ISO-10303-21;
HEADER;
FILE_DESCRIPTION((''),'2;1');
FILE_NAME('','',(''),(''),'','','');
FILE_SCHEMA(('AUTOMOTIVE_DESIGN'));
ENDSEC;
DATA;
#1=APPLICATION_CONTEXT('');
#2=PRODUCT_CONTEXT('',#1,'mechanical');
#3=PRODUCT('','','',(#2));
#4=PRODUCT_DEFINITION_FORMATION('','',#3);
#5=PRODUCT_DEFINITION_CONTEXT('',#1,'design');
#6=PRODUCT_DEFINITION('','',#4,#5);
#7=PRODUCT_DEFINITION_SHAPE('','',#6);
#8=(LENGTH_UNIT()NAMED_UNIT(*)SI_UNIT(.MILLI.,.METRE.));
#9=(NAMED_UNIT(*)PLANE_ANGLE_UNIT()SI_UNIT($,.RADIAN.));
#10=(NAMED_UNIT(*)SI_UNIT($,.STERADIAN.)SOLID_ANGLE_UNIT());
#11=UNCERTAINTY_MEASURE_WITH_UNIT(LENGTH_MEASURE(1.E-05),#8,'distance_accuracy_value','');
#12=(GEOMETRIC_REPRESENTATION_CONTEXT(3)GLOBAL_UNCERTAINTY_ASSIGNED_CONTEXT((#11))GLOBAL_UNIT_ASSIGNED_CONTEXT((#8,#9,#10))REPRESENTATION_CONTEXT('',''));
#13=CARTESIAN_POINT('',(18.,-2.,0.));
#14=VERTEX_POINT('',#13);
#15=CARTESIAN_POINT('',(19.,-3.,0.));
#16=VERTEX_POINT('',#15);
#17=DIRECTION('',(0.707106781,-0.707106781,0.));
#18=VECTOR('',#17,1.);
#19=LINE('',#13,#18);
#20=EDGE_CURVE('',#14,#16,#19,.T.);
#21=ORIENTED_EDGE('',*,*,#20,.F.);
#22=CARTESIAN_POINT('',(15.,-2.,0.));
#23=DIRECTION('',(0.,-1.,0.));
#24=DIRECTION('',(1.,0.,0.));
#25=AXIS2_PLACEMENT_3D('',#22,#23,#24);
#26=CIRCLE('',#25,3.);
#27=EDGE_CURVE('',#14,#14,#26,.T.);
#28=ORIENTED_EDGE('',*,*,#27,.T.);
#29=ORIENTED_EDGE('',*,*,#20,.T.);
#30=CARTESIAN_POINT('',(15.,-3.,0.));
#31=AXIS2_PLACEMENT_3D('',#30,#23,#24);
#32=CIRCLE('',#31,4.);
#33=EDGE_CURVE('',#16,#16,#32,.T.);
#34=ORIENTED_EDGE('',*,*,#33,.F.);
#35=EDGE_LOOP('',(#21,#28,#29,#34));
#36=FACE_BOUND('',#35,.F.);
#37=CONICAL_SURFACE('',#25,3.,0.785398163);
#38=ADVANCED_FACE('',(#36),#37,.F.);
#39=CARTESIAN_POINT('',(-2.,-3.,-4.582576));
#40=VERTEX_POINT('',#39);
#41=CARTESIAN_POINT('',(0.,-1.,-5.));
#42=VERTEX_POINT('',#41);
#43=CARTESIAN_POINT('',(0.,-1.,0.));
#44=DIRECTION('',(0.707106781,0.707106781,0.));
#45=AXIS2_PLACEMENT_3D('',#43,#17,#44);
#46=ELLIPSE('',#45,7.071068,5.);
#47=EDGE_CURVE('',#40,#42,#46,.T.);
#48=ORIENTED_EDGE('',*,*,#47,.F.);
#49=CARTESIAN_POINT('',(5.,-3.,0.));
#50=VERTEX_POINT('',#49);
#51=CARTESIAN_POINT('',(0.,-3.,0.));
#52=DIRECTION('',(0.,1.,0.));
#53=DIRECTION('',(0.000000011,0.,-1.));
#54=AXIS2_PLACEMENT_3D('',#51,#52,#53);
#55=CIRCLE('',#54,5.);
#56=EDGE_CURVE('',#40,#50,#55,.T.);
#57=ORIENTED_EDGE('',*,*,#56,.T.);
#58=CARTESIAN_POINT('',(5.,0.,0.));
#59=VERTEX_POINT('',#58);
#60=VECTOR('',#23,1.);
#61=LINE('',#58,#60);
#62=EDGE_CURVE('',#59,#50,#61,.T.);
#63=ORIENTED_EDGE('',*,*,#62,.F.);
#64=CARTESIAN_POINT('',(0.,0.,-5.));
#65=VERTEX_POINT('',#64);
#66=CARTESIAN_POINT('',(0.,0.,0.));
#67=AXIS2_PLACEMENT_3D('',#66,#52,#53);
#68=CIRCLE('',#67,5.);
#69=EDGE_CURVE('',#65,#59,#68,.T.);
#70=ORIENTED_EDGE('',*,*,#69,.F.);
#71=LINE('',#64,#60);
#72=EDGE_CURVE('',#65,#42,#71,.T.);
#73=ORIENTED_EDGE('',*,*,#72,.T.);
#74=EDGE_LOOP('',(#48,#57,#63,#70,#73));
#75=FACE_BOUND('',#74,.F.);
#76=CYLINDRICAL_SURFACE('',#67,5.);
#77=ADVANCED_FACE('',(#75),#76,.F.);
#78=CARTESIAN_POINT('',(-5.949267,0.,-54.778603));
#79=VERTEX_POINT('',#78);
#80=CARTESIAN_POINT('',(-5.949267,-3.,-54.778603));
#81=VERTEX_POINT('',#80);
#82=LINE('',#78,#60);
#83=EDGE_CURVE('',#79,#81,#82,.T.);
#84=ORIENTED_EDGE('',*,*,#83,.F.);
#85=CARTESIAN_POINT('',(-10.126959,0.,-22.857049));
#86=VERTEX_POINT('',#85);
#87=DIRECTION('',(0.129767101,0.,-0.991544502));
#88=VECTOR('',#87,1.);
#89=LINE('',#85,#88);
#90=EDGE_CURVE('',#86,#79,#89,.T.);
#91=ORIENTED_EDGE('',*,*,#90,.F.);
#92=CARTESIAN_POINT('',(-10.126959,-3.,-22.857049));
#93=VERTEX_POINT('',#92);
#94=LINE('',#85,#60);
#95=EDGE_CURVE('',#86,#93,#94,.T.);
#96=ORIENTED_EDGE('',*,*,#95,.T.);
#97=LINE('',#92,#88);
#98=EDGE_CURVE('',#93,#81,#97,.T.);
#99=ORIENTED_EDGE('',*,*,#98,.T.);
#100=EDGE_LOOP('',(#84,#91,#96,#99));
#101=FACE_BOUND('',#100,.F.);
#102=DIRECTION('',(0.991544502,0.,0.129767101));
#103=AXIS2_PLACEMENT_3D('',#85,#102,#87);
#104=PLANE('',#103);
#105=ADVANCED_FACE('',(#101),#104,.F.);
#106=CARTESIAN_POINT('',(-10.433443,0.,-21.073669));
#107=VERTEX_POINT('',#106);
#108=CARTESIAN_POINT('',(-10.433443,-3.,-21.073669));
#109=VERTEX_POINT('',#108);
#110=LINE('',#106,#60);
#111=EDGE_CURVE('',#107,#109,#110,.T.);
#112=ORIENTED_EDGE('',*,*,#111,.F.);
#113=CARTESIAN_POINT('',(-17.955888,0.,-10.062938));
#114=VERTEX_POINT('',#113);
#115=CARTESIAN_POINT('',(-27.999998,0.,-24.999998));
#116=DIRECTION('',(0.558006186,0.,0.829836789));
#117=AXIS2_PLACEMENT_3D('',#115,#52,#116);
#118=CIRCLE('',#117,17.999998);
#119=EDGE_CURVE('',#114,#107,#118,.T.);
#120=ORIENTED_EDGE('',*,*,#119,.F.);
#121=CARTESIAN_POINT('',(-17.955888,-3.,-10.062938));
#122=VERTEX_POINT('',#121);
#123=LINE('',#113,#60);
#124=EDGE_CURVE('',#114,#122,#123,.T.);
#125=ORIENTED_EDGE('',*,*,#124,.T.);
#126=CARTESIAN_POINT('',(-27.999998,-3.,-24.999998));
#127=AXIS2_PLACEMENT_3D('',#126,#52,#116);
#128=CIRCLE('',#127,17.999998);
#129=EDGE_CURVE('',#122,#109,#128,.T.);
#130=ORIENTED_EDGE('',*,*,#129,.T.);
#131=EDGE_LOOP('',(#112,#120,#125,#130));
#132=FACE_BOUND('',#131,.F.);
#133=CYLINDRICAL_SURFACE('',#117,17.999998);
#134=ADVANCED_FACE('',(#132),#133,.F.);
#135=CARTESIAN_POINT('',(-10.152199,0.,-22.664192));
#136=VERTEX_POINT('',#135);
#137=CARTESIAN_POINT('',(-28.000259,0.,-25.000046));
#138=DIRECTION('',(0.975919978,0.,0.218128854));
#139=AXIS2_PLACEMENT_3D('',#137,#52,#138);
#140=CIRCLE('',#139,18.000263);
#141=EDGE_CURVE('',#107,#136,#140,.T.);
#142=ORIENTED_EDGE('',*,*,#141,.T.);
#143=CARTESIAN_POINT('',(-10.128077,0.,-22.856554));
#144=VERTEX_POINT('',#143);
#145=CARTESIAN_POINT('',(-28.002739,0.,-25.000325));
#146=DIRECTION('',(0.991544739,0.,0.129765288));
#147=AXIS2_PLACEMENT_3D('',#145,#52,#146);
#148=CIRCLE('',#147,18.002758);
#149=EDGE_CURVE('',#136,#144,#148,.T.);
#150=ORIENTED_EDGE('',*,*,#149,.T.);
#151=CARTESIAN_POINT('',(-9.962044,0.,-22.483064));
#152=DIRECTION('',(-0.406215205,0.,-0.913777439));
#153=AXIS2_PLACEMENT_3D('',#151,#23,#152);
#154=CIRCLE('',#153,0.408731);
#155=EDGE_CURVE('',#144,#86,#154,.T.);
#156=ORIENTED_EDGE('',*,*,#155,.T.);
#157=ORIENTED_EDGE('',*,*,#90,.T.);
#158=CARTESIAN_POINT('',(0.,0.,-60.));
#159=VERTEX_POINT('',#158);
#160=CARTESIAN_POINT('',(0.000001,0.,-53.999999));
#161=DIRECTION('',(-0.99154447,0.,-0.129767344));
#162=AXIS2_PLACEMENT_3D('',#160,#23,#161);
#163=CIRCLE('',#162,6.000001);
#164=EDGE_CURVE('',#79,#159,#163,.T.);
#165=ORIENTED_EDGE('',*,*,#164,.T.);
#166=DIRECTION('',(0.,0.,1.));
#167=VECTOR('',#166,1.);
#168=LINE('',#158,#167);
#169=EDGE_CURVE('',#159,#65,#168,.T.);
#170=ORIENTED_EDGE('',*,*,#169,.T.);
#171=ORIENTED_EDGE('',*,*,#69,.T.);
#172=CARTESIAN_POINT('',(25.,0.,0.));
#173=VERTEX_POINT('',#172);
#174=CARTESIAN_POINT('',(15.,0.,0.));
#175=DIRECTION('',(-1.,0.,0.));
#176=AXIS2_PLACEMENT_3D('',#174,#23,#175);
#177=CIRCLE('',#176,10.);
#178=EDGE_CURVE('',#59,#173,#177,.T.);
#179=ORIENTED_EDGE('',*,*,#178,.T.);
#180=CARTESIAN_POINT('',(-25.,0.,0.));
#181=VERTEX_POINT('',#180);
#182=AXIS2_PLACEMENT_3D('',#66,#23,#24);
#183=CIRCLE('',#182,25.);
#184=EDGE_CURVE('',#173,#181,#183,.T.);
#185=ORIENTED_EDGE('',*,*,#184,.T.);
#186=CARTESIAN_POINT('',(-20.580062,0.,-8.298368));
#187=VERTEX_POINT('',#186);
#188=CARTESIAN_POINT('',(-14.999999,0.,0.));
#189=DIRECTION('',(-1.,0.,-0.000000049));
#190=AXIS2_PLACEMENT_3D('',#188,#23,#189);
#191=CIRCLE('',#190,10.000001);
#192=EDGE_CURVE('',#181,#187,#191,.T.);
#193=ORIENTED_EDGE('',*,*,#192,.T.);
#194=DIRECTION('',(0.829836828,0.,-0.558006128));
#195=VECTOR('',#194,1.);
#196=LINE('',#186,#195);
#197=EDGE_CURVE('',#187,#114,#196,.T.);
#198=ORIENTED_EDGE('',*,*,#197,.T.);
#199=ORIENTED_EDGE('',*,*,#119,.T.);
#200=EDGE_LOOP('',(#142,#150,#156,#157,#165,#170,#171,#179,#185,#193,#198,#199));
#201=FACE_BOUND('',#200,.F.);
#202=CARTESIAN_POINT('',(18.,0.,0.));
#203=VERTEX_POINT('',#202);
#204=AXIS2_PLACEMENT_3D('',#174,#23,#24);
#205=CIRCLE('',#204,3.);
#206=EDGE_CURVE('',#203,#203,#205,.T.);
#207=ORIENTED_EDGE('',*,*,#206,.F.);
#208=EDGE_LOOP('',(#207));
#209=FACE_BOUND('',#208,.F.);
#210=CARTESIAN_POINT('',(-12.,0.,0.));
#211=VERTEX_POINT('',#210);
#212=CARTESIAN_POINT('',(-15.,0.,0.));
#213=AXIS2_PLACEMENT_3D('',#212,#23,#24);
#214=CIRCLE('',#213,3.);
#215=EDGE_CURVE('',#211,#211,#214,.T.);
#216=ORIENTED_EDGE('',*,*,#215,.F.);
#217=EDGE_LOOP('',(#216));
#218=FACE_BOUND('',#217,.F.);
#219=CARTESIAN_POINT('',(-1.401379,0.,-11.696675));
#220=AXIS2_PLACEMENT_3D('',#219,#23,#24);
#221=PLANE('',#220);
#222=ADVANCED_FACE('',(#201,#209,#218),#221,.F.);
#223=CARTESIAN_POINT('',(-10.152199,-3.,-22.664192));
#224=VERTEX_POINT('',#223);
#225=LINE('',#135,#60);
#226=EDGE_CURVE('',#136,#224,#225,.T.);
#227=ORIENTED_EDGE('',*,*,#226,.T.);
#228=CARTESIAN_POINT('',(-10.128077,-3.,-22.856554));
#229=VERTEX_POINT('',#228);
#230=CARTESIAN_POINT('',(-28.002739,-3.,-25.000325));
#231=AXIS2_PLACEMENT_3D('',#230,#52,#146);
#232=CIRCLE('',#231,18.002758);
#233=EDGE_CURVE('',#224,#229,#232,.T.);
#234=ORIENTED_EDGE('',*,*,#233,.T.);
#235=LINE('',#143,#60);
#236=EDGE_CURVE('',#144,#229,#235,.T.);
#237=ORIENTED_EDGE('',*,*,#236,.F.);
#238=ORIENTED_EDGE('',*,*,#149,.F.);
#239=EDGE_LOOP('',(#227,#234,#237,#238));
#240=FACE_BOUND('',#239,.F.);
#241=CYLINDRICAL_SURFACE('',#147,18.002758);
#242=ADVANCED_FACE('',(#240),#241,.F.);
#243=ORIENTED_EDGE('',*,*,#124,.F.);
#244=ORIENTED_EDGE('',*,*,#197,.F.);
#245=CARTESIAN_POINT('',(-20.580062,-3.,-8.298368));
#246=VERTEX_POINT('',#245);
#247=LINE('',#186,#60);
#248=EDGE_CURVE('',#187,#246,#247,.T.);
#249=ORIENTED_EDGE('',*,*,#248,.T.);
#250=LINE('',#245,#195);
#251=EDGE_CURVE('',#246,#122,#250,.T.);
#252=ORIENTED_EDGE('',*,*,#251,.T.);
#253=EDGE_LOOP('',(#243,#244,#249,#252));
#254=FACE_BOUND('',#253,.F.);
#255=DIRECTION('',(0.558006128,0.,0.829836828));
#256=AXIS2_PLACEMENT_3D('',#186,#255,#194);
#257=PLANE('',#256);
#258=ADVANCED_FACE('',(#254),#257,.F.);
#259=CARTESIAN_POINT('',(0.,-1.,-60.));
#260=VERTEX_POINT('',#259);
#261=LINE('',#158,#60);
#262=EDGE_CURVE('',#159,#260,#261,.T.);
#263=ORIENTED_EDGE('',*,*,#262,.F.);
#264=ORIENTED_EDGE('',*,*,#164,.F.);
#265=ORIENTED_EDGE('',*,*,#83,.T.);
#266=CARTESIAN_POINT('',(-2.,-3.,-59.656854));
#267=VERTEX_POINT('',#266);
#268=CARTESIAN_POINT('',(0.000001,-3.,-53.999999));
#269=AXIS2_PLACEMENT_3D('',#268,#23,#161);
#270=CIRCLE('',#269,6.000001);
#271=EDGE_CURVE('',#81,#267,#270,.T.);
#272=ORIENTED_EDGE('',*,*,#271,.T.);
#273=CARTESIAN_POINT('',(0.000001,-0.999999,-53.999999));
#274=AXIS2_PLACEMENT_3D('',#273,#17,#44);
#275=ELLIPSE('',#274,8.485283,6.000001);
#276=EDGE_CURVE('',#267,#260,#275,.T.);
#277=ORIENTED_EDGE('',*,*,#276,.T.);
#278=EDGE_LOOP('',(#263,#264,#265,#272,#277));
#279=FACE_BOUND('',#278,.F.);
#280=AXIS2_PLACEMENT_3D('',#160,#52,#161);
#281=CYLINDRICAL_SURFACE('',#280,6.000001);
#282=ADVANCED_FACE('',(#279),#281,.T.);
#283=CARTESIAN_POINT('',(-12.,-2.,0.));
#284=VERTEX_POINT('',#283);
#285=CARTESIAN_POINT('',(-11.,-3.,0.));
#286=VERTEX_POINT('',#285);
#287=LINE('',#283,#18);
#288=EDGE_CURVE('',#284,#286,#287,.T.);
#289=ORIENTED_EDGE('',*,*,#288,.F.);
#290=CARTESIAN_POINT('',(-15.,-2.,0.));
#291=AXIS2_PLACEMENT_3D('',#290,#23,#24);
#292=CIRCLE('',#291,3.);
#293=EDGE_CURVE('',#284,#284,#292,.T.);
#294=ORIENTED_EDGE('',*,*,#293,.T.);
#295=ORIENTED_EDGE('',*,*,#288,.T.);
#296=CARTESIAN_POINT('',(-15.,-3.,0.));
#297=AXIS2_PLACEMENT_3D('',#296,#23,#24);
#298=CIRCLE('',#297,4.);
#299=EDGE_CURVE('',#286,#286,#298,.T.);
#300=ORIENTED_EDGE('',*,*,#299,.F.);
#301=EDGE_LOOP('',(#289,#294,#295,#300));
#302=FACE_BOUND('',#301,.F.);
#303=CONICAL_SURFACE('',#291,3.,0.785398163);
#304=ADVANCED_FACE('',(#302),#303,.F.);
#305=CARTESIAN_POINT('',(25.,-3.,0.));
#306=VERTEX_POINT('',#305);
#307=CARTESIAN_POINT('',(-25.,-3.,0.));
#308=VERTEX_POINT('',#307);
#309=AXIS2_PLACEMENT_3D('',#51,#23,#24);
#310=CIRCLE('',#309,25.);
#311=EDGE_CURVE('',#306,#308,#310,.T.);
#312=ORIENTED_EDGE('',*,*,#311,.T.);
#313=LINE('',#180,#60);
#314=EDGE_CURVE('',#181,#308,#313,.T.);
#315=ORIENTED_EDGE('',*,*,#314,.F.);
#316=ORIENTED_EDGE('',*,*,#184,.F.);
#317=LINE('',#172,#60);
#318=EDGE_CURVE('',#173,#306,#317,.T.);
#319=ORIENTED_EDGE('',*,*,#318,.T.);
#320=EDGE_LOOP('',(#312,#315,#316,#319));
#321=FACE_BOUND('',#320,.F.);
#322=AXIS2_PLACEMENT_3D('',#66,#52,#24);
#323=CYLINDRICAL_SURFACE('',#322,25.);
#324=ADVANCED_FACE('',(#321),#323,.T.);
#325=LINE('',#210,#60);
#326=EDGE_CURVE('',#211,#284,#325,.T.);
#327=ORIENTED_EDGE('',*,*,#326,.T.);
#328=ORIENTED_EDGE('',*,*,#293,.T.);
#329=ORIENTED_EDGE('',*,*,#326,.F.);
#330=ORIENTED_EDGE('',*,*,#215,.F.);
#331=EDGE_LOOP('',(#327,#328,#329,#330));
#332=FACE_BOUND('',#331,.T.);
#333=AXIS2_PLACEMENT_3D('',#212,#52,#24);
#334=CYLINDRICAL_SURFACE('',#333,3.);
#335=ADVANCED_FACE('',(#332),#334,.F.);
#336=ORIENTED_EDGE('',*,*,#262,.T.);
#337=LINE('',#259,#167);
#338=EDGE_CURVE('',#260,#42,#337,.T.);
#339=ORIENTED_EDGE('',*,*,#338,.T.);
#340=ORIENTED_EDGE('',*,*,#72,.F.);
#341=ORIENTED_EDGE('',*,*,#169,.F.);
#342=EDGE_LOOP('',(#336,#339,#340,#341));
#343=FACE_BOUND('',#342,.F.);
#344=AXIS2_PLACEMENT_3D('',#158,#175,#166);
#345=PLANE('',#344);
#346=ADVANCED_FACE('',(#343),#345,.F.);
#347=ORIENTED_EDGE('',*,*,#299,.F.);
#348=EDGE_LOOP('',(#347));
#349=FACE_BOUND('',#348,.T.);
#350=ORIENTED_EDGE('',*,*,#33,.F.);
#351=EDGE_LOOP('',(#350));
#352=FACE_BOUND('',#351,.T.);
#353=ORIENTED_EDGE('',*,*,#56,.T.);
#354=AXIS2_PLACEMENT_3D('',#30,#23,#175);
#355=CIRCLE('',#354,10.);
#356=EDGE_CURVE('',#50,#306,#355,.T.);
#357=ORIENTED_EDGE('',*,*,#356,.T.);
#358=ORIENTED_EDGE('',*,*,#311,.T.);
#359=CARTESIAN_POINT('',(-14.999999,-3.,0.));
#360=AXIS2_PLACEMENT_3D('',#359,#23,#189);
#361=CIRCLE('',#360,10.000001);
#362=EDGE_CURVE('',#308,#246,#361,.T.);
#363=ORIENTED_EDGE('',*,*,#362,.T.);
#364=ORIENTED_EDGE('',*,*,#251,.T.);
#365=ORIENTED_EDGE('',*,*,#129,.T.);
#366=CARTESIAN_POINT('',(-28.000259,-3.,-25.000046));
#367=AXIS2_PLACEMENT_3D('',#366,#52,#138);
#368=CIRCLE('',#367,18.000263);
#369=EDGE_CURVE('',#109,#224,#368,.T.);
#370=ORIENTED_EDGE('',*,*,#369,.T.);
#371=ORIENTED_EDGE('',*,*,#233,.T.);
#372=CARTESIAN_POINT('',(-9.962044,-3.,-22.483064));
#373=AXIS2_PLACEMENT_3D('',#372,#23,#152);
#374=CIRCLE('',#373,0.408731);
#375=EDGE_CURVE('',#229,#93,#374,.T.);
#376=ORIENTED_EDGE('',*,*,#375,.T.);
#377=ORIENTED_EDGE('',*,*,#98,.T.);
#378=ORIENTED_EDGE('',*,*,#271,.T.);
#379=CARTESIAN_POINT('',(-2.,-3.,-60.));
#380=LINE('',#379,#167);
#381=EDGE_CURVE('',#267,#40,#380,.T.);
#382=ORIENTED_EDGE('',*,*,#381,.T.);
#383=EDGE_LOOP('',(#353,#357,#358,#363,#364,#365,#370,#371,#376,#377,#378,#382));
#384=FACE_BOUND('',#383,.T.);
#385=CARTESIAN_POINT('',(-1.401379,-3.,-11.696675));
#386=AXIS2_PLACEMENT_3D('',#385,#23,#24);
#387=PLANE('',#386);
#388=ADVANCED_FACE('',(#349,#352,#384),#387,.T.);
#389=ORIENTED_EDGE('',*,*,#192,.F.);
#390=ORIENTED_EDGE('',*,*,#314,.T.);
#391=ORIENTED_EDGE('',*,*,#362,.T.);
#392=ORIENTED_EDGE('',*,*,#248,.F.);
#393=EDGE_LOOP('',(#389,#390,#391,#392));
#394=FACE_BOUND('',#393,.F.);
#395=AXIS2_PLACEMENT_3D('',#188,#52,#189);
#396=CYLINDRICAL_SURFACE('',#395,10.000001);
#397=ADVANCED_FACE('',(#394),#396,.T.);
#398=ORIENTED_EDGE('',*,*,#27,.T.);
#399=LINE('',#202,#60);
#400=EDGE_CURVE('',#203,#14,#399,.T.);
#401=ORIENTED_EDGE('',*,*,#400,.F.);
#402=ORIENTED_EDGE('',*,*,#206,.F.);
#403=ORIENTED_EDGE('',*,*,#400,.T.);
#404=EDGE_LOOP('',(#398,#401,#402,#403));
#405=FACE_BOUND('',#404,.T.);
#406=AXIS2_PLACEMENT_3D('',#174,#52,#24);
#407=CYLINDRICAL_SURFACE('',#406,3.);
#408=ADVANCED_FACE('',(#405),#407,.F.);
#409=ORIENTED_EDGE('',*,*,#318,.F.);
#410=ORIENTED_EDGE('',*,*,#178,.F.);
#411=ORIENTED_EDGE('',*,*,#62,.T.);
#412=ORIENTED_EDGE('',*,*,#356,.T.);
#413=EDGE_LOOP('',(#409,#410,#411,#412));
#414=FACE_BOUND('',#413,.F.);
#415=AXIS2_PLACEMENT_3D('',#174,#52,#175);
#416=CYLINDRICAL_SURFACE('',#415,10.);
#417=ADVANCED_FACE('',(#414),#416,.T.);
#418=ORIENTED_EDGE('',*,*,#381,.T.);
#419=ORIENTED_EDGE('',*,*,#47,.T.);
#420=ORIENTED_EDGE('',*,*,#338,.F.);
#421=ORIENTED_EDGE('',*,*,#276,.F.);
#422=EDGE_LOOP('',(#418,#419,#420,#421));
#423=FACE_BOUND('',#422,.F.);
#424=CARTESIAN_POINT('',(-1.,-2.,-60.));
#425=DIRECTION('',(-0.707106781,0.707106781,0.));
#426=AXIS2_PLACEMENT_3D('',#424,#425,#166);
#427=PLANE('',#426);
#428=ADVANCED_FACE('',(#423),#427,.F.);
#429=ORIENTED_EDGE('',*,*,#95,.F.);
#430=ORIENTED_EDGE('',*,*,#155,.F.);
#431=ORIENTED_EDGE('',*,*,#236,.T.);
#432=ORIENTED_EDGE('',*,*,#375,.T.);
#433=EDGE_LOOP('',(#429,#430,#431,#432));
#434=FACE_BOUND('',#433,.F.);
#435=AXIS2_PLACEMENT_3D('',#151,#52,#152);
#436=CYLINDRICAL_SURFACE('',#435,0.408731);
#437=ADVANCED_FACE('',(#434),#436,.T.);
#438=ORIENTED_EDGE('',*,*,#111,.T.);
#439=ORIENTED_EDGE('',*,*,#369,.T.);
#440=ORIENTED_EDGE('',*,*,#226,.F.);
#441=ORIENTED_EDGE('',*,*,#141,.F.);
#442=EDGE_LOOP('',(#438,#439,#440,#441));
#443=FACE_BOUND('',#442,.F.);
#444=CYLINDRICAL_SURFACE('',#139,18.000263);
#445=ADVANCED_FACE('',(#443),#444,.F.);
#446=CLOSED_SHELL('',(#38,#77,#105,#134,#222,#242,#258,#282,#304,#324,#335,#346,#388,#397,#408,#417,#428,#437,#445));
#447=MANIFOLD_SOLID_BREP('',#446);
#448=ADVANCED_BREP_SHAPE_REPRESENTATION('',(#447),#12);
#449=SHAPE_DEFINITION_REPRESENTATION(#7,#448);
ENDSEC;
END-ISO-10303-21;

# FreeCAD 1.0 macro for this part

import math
import FreeCAD as App
import Part
import Sketcher
from FreeCAD import Vector


def edges_at(feature, points):
    """Names of the edges that pass closest to the given points."""
    edges = feature.Shape.Edges
    near = lambda p: min(range(len(edges)), key=lambda i: edges[i].distToShape(Part.Vertex(*p))[0])
    return sorted({f"Edge{near(p) + 1}" for p in points})

doc = App.newDocument("Part")
body = doc.addObject("PartDesign::Body", "Body")

# Sketch on XZ plane
sketch1 = body.newObject("Sketcher::SketchObject", "Sketch")
sketch1.AttachmentSupport = (doc.getObject("XZ_Plane"), [""])
sketch1.MapMode = "FlatFace"
sketch1.addGeometry([
    Part.ArcOfCircle(Part.Circle(Vector(15, 0, 0), Vector(0, 0, 1), 10), math.radians(180), math.radians(360)),  # 0
    Part.ArcOfCircle(Part.Circle(Vector(0, 0, 0), Vector(0, 0, 1), 25), math.radians(0), math.radians(180)),  # 1
    Part.ArcOfCircle(Part.Circle(Vector(-15, 0, 0), Vector(0, 0, 1), 10), math.radians(-180), math.radians(-124)),  # 2
    Part.LineSegment(Vector(-20.5801, -8.2984, 0), Vector(-17.9559, -10.0629, 0)),  # 3
    Part.ArcOfCircle(Part.Circle(Vector(-28, -25, 0), Vector(0, 0, 1), 18), math.radians(13), math.radians(56)),  # 4
    Part.ArcOfCircle(Part.Circle(Vector(-28.0003, -25, 0), Vector(0, 0, 1), 18.0003), math.radians(7.46), math.radians(12.6)),  # 5
    Part.ArcOfCircle(Part.Circle(Vector(-28.0027, -25.0003, 0), Vector(0, 0, 1), 18.0028), math.radians(6.84), math.radians(7.46)),  # 6
    Part.ArcOfCircle(Part.Circle(Vector(-9.962, -22.4831, 0), Vector(0, 0, 1), 0.4087), math.radians(-113.97), math.radians(-113.8)),  # 7
    Part.LineSegment(Vector(-10.127, -22.857, 0), Vector(-5.9493, -54.7786, 0)),  # 8
    Part.ArcOfCircle(Part.Circle(Vector(0, -54, 0), Vector(0, 0, 1), 6), math.radians(-173), math.radians(-90)),  # 9
    Part.LineSegment(Vector(0, -60, 0), Vector(0, -5, 0)),  # 10
    Part.ArcOfCircle(Part.Circle(Vector(0, 0, 0), Vector(0, 0, 1), 5), math.radians(0), math.radians(270)),  # 11
    Part.Circle(Vector(-15, 0, 0), Vector(0, 0, 1), 3),  # 12
    Part.Circle(Vector(15, 0, 0), Vector(0, 0, 1), 3),  # 13
], False)
sketch1.addConstraint([
    Sketcher.Constraint("Tangent", 0, 2, 1, 1),
    Sketcher.Constraint("Tangent", 1, 2, 2, 1),
    Sketcher.Constraint("Tangent", 2, 2, 3, 1),
    Sketcher.Constraint("Tangent", 3, 2, 4, 2),
    Sketcher.Constraint("Tangent", 4, 1, 5, 2),
    Sketcher.Constraint("Coincident", 5, 1, 6, 2),
    Sketcher.Constraint("Coincident", 6, 1, 7, 1),
    Sketcher.Constraint("Coincident", 7, 2, 8, 1),
    Sketcher.Constraint("Tangent", 8, 2, 9, 1),
    Sketcher.Constraint("Coincident", 9, 2, 10, 1),
    Sketcher.Constraint("Coincident", 10, 2, 11, 2),
    Sketcher.Constraint("Tangent", 11, 1, 0, 1),
    Sketcher.Constraint("Vertical", 10),
    Sketcher.Constraint("Coincident", 1, 3, -1, 1),
    Sketcher.Constraint("Coincident", 11, 3, -1, 1),
    Sketcher.Constraint("Coincident", 12, 3, 2, 3),
    Sketcher.Constraint("Coincident", 13, 3, 0, 3),
    Sketcher.Constraint("Equal", 0, 2),
    Sketcher.Constraint("Equal", 12, 13),
    Sketcher.Constraint("PointOnObject", 0, 3, -1),
    Sketcher.Constraint("PointOnObject", 2, 3, -1),
    Sketcher.Constraint("PointOnObject", 9, 3, -2),
    Sketcher.Constraint("PointOnObject", 9, 2, -2),
    Sketcher.Constraint("Diameter", 12, 6.0),
    Sketcher.Constraint("Radius", 0, 10.0),
    Sketcher.Constraint("Radius", 1, 25.0),
    Sketcher.Constraint("Radius", 9, 6.000001),
    Sketcher.Constraint("DistanceY", 10, 1, 10, 2, 55.0),
    Sketcher.Constraint("DistanceX", 4, 3, -1, 1, 27.999998),
    Sketcher.Constraint("DistanceY", 4, 3, -1, 1, 24.999998),
    Sketcher.Constraint("Radius", 6, 18.002758),
    Sketcher.Constraint("Radius", 7, 0.408731),
    Sketcher.Constraint("Radius", 4, 17.999998),
    Sketcher.Constraint("Radius", 5, 18.000263),
    Sketcher.Constraint("DistanceX", 5, 1, -1, 1, 10.152199),
    Sketcher.Constraint("DistanceX", 4, 1, 7, 3, 0.471399),
    Sketcher.Constraint("DistanceY", 4, 1, 2, 2, 12.775301),
    Sketcher.Constraint("Distance", 8, 32.193768),
    Sketcher.Constraint("DistanceX", 6, 3, -1, 1, 28.002739),
    Sketcher.Constraint("DistanceX", 7, 2, -1, 1, 10.126959),
])
pad1 = body.newObject("PartDesign::Pad", "Pad")
pad1.Profile = sketch1
pad1.Length = 3
doc.recompute()

chamfer = body.newObject("PartDesign::Chamfer", "Chamfer")
chamfer.Base = (pad1, edges_at(pad1, [(-18, -3, 0), (12, -3, 0)]))
chamfer.Size = 1
doc.recompute()

chamfer2 = body.newObject("PartDesign::Chamfer", "Chamfer001")
chamfer2.Base = (chamfer, edges_at(chamfer, [(0, -3, -32.5)]))
chamfer2.Size = 2

doc.recompute()
